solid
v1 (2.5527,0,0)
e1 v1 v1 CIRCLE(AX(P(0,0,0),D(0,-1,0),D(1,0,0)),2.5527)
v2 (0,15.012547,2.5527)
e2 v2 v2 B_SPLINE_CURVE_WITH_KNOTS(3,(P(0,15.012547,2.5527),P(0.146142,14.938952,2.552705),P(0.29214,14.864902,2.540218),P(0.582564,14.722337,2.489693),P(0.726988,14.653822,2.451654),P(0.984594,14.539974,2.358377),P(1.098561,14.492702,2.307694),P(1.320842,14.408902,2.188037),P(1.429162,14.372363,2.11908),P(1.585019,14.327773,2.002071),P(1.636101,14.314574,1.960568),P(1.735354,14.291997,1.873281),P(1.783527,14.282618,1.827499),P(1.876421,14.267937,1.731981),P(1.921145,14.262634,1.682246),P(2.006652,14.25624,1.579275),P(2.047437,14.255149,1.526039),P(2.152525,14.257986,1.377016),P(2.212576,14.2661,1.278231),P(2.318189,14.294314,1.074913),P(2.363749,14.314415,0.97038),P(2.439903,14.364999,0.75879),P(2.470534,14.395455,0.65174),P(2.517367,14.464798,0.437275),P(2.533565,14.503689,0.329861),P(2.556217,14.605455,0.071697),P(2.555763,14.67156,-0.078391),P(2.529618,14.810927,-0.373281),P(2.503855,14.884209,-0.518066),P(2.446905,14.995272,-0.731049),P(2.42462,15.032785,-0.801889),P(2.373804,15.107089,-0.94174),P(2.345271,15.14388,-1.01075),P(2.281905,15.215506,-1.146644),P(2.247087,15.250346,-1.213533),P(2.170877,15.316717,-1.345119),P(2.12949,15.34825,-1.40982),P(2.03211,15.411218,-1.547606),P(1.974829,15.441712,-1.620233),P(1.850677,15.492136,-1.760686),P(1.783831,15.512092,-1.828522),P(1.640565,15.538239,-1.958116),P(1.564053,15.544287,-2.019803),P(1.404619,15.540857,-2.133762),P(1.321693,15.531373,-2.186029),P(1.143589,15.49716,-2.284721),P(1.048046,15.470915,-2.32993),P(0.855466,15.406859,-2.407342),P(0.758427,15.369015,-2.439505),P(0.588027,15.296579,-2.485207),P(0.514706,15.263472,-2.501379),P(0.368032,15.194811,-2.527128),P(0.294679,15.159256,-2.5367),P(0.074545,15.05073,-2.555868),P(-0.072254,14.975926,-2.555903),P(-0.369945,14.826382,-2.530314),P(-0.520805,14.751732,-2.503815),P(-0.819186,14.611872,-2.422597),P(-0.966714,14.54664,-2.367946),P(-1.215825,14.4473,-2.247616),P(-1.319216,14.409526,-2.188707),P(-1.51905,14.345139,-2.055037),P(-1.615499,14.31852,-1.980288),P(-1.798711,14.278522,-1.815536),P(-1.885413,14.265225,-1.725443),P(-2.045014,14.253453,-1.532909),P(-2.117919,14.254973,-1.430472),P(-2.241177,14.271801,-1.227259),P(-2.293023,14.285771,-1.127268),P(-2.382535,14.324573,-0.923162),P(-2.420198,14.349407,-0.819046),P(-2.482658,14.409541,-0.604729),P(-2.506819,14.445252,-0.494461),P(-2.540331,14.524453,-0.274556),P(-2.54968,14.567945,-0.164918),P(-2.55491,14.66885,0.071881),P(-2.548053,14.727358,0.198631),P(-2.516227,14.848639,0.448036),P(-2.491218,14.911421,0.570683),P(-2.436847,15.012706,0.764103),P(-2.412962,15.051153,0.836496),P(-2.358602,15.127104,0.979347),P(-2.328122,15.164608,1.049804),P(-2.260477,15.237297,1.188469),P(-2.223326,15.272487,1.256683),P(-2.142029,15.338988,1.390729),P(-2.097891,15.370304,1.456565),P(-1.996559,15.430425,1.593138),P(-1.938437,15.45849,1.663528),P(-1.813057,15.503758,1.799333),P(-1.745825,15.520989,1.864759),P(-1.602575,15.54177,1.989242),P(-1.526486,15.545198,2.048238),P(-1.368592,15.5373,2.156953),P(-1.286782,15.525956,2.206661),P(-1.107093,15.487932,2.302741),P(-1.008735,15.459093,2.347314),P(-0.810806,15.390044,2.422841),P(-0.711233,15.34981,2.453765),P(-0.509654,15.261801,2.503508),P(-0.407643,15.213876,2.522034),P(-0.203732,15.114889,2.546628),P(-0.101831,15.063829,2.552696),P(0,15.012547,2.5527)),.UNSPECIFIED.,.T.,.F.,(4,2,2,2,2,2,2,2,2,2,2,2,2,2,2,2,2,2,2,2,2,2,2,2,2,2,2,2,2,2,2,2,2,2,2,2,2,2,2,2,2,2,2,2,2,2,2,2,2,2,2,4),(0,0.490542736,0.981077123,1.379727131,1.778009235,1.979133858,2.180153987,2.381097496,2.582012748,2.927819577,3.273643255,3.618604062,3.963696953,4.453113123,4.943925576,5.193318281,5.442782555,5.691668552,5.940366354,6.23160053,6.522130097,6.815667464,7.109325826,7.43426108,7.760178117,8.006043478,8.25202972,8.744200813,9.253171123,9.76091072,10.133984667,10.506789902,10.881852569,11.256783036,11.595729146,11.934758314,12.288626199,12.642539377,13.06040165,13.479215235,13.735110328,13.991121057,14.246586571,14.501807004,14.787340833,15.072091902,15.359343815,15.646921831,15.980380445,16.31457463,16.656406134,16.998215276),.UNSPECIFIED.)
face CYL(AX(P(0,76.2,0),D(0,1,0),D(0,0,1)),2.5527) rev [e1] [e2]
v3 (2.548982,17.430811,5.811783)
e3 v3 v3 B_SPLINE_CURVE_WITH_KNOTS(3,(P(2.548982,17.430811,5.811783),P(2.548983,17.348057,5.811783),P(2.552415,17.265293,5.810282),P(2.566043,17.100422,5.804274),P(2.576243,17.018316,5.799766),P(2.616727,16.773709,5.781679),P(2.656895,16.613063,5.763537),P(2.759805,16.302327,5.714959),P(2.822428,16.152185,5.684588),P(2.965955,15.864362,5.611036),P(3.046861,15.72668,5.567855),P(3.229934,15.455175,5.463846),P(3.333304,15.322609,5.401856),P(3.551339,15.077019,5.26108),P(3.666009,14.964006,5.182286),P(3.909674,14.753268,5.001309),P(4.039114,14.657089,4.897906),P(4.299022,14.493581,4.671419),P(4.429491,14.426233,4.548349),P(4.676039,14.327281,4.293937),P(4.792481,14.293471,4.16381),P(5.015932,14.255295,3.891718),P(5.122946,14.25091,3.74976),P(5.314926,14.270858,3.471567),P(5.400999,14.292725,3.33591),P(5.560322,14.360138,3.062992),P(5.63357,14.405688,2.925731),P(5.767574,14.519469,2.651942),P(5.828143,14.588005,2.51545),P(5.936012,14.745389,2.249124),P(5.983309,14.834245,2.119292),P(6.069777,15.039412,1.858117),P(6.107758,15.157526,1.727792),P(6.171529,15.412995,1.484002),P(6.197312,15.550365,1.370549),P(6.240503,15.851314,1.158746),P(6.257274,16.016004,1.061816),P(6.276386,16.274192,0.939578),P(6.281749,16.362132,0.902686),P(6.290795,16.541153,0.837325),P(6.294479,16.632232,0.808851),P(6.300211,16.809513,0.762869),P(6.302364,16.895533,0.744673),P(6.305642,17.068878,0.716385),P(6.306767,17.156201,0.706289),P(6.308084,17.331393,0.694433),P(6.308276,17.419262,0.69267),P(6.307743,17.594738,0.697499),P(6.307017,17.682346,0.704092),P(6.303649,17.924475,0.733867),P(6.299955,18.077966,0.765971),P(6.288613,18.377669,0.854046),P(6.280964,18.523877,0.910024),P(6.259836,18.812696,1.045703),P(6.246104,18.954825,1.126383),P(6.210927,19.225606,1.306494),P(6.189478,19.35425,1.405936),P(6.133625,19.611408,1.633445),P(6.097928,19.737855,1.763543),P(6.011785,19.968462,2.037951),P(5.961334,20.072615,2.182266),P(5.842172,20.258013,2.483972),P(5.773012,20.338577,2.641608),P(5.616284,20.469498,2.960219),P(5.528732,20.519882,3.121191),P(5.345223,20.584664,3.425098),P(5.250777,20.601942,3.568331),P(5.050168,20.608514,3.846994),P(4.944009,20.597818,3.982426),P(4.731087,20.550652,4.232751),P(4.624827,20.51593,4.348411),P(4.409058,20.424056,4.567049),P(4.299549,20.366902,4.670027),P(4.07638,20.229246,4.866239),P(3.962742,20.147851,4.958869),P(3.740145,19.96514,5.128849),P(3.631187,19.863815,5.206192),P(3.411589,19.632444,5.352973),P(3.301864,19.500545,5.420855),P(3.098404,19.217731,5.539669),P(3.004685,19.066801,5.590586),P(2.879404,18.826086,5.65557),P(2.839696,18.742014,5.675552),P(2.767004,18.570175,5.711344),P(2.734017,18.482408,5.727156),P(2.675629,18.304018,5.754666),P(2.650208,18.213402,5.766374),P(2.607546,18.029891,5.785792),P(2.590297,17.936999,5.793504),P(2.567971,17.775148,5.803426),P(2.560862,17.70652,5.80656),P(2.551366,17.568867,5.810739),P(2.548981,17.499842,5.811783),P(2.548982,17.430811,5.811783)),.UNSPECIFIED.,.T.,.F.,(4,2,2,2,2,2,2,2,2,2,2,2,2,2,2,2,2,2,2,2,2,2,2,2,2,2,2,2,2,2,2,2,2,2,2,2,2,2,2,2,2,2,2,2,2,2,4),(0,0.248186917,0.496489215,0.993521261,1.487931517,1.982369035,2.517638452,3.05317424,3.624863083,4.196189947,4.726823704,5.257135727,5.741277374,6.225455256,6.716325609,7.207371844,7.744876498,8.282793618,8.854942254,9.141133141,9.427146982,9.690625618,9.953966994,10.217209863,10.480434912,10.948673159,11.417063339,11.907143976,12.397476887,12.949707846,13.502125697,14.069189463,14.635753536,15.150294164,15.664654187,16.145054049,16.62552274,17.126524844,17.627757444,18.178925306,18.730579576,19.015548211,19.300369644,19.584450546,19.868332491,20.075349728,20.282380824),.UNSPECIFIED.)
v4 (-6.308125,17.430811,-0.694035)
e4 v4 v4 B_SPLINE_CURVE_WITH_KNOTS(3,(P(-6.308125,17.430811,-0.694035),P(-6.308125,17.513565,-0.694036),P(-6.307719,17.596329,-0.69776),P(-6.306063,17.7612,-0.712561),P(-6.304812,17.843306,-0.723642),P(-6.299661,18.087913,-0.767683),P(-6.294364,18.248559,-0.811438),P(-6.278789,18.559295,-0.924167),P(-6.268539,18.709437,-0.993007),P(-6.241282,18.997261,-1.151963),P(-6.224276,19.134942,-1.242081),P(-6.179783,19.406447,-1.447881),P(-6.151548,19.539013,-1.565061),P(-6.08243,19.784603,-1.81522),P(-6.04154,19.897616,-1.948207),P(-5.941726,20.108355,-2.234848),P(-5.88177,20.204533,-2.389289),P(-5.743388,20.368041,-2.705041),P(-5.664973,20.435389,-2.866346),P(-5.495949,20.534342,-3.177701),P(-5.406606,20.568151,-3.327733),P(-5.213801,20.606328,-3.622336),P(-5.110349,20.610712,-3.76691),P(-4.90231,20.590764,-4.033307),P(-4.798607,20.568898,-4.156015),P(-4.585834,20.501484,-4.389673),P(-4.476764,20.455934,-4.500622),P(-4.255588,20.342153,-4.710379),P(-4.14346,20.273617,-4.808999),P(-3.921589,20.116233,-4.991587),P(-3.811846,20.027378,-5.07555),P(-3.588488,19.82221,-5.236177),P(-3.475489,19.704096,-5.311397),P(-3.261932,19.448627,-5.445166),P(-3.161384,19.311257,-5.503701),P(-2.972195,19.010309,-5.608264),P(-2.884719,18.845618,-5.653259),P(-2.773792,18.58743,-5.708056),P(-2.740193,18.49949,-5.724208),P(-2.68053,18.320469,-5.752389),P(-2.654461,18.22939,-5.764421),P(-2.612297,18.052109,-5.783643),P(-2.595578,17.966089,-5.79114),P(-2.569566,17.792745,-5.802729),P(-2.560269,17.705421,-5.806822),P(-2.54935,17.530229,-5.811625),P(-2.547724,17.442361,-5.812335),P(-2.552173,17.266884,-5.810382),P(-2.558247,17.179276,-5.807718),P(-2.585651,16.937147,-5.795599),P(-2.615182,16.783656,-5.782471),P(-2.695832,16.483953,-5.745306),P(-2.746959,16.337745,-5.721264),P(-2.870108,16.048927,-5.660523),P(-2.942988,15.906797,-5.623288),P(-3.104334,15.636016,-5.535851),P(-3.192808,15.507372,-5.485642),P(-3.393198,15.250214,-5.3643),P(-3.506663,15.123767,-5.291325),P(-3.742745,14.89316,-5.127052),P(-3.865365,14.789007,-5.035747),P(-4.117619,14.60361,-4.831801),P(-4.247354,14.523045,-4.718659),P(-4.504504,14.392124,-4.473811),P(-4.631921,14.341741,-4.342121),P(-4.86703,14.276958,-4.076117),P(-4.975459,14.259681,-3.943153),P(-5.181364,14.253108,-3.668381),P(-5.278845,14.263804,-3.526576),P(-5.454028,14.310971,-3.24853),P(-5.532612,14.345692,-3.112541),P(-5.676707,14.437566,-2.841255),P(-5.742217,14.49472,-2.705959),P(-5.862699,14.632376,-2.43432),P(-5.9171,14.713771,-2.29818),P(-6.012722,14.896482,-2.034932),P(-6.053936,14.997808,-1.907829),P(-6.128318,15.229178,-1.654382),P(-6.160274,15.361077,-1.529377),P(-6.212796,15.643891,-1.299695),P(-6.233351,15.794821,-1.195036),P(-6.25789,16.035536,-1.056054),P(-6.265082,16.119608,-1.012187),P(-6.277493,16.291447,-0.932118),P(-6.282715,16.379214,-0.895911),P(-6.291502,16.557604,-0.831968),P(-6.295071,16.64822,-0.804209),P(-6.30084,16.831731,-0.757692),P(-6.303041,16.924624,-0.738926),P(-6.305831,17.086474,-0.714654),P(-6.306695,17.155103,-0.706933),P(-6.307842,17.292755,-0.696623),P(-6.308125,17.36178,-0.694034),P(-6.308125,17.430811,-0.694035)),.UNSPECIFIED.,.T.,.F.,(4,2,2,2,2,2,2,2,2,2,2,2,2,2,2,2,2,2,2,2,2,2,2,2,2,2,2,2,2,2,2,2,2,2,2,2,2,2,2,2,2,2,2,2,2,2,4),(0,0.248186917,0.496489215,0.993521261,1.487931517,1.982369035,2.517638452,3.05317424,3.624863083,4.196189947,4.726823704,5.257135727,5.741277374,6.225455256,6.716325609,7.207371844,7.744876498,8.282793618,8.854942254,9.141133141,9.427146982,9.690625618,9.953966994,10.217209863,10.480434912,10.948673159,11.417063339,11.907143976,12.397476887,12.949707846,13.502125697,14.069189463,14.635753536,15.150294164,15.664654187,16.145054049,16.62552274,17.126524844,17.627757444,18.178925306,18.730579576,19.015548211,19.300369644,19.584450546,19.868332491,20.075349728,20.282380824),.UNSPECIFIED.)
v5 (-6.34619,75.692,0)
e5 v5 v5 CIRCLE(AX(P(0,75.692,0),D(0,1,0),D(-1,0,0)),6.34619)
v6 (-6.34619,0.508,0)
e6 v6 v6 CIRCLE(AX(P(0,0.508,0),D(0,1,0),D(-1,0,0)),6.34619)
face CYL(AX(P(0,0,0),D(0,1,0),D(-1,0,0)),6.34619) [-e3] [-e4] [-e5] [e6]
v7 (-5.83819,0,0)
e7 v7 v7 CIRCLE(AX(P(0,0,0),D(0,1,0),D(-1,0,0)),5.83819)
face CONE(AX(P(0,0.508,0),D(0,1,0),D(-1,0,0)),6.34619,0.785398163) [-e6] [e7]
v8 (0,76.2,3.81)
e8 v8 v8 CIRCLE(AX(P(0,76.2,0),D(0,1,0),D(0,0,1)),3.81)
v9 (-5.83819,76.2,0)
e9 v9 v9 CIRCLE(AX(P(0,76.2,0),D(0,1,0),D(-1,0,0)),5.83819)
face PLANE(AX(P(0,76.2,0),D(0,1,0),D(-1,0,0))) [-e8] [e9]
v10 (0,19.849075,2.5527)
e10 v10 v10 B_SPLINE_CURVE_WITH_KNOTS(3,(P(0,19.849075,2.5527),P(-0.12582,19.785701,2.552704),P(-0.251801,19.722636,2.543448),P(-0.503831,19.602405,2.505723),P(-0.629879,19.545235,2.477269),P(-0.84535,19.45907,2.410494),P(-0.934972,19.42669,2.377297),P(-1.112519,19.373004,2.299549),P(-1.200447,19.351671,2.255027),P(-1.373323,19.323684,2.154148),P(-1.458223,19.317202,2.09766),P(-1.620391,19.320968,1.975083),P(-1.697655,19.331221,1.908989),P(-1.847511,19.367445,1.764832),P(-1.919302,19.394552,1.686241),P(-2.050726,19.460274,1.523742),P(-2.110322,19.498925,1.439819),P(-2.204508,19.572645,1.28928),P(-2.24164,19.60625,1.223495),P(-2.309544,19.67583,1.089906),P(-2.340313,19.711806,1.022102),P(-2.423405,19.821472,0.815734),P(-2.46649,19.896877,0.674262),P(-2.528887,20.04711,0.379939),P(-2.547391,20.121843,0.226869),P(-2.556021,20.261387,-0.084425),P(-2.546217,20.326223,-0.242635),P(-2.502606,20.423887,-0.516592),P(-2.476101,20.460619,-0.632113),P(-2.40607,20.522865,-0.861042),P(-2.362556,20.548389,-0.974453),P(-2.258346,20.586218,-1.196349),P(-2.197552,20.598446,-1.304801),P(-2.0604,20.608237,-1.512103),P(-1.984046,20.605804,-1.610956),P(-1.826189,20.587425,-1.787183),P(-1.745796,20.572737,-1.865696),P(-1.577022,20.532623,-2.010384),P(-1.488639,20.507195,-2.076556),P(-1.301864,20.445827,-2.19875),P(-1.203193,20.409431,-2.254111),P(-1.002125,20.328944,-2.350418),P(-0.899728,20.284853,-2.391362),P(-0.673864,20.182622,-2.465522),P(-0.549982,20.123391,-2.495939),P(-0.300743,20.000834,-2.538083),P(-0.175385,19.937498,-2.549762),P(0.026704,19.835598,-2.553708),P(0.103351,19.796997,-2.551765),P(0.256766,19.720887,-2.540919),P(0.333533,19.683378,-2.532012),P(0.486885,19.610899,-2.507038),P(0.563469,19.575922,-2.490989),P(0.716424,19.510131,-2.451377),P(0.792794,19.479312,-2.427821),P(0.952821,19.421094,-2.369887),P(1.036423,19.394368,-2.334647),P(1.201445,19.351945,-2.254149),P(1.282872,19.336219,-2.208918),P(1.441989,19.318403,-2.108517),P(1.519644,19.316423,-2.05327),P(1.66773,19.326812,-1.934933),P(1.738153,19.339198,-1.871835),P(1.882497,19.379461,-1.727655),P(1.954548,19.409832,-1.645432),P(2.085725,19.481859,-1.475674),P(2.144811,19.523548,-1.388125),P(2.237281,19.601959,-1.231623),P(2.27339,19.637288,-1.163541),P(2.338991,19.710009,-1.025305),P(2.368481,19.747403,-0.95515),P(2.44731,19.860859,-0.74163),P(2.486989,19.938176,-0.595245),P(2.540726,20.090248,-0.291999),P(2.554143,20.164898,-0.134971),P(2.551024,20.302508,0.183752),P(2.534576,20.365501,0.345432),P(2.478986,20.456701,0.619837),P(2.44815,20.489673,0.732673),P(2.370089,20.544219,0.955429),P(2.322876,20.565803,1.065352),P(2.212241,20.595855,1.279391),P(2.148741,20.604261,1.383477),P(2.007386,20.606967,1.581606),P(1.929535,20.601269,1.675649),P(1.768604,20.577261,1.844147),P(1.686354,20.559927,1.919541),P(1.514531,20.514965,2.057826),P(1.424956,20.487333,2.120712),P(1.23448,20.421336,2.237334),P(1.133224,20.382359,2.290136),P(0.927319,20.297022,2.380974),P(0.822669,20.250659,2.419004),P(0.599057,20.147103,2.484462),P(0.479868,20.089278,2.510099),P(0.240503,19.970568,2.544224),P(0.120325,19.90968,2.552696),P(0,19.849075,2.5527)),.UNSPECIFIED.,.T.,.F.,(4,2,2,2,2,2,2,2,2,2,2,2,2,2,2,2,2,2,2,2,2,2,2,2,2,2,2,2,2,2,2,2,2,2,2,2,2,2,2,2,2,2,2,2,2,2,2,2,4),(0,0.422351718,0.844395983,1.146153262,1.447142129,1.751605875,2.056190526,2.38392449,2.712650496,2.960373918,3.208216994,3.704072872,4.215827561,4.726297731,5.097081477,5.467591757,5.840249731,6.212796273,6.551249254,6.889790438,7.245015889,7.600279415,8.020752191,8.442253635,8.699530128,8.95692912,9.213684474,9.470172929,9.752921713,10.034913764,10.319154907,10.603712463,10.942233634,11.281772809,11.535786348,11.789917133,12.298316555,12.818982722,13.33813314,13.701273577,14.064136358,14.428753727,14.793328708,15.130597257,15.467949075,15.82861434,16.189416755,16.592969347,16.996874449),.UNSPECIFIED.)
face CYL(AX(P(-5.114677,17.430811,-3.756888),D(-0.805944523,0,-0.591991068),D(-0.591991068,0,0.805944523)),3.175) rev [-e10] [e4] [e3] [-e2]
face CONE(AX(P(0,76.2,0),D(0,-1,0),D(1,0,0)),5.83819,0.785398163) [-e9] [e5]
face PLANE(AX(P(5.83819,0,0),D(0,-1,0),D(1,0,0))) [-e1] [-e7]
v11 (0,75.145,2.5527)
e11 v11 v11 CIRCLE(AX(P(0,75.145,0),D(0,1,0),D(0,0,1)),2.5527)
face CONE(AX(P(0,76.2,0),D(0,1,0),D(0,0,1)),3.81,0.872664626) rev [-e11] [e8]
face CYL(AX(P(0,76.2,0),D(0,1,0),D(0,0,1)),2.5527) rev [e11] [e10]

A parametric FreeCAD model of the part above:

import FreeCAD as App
import Part
import Sketcher
Q = App.Units.Quantity


def add_polygon(sketch, points):
    """Adds a closed chain of lines whose ends are joined by coincident constraints."""
    first, n = sketch.GeometryCount, len(points)
    for a, b in zip(points, points[1:] + points[:1]):
        sketch.addGeometry(Part.LineSegment(App.Vector(*a, 0), App.Vector(*b, 0)), False)
    for i in range(n):
        sketch.addConstraint(Sketcher.Constraint("Coincident", first + i, 2, first + (i + 1) % n, 1))

doc = App.newDocument("Part")
body = doc.addObject("PartDesign::Body", "Body")

# Sketch on XY plane
sketch1 = body.newObject("Sketcher::SketchObject", "Sketch")
sketch1.AttachmentSupport = (doc.getObject("XY_Plane"), [""])
sketch1.MapMode = "FlatFace"
add_polygon(sketch1, [(5.8, 0), (0, 0), (0, 76.2), (5.8, 76.2), (6.3, 75.7), (6.3, 0.5)])  # lines 0-5
sketch1.addConstraint([
    Sketcher.Constraint("Horizontal", 0),
    Sketcher.Constraint("Vertical", 1),
    Sketcher.Constraint("Horizontal", 2),
    Sketcher.Constraint("Vertical", 4),
    Sketcher.Constraint("Coincident", 0, 2, -1, 1),
    Sketcher.Constraint("Perpendicular", 3, 5),
    Sketcher.Constraint("Vertical", 2, 2, 5, 2),
    Sketcher.Constraint("Equal", 3, 5),
    Sketcher.Constraint("DistanceY", 1, 1, 1, 2, Q("3 in")),
    Sketcher.Constraint("DistanceY", 4, 2, 4, 1, Q("2.96 in")),
    Sketcher.Constraint("DistanceX", 0, 2, 0, 1, 5.83819),
])
revolution = body.newObject("PartDesign::Revolution", "Revolution")
revolution.Profile = sketch1
revolution.ReferenceAxis = (sketch1, ["V_Axis"])
revolution.Angle = 360

# Sketch on XZ plane
sketch2 = body.newObject("Sketcher::SketchObject", "Sketch001")
sketch2.AttachmentSupport = (doc.getObject("XZ_Plane"), [""])
sketch2.MapMode = "FlatFace"
sketch2.AttachmentOffset = App.Placement(App.Vector(0, 0, -3 * 25.4), App.Rotation())
sketch2.addGeometry(Part.Circle(App.Vector(0, 0, 0), App.Vector(0, 0, 1), 2.6), False)
sketch2.addConstraint([
    Sketcher.Constraint("Coincident", 0, 3, -1, 1),
    Sketcher.Constraint("Diameter", 0, Q("0.201 in")),
])
doc.recompute()
hole = body.newObject("PartDesign::Hole", "Hole")
hole.Profile = sketch2
hole.ThreadType = "None"
hole.Diameter = Q("0.201 in")
hole.DepthType = "Dimension"
hole.Depth = Q("3 in")
hole.DrillPoint = "Flat"
hole.HoleCutType = "Countersink"
hole.HoleCutDiameter = Q("0.3 in")
hole.HoleCutCountersinkAngle = 100
hole.Reversed = True

# Sketch on an angled plane
sketch3 = body.newObject("Sketcher::SketchObject", "Sketch002")
sketch3.Placement = App.Placement(App.Vector(-5.114677, 0, -3.756888), App.Rotation(App.Vector(0.591991068, 0, -0.805944524), App.Vector(0, -1, 0), App.Vector(-0.805944524, 0, -0.591991068), "ZXY"))
sketch3.addGeometry(Part.Circle(App.Vector(0, -17.4, 0), App.Vector(0, 0, 1), 3.2), False)
sketch3.addConstraint([
    Sketcher.Constraint("PointOnObject", 0, 3, -2),
    Sketcher.Constraint("Diameter", 0, Q("0.25 in")),
    Sketcher.Constraint("DistanceY", 0, 3, -1, 1, 17.430811),
])
doc.recompute()
hole2 = body.newObject("PartDesign::Hole", "Hole001")
hole2.Profile = sketch3
hole2.ThreadType = "None"
hole2.Diameter = Q("0.25 in")
hole2.DepthType = "ThroughAll"

doc.recompute()
